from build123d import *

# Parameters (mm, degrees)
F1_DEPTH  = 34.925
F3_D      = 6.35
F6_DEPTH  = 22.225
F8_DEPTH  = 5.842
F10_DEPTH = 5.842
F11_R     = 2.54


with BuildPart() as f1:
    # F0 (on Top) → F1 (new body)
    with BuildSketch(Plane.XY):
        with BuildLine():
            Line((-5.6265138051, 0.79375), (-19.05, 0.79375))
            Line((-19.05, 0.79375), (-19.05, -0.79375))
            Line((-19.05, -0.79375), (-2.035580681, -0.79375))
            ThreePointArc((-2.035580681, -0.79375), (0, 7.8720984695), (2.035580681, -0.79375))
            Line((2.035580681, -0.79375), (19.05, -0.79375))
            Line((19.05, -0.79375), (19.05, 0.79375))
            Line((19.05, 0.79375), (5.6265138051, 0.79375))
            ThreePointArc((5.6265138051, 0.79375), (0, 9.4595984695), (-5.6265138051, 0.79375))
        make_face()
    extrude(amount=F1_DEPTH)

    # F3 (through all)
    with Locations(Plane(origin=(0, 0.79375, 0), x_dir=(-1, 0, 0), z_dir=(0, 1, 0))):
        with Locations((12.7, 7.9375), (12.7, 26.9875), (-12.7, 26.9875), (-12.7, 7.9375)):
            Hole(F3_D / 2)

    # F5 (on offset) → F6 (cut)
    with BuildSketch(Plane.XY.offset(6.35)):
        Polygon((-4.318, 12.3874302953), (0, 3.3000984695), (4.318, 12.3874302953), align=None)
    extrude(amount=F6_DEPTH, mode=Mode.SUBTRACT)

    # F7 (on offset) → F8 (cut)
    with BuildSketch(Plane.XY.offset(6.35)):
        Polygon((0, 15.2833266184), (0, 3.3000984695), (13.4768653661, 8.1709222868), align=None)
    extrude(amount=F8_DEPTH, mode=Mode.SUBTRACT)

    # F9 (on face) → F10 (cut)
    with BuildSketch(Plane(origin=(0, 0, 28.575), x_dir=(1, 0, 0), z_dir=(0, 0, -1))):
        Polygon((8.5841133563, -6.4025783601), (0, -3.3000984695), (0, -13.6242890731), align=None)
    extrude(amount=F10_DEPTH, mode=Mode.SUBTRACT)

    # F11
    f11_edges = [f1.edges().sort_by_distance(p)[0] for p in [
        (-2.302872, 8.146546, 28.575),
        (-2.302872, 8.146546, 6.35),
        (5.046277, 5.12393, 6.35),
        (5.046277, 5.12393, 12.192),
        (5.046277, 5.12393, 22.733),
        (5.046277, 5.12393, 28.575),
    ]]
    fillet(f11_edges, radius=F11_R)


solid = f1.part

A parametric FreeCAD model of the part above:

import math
import FreeCAD as App
import Part
import Sketcher
from FreeCAD import Vector
Q = App.Units.Quantity


def edges_at(feature, points):
    """Names of the edges that pass closest to the given points."""
    edges = feature.Shape.Edges
    near = lambda p: min(range(len(edges)), key=lambda i: edges[i].distToShape(Part.Vertex(*p))[0])
    return sorted({f"Edge{near(p) + 1}" for p in points})


def add_polygon(sketch, points):
    """Adds a closed chain of lines whose ends are joined by coincident constraints."""
    first, n = sketch.GeometryCount, len(points)
    for a, b in zip(points, points[1:] + points[:1]):
        sketch.addGeometry(Part.LineSegment(App.Vector(*a, 0), App.Vector(*b, 0)), False)
    for i in range(n):
        sketch.addConstraint(Sketcher.Constraint("Coincident", first + i, 2, first + (i + 1) % n, 1))

doc = App.newDocument("Part")
body = doc.addObject("PartDesign::Body", "Body")

sketch1 = body.newObject("Sketcher::SketchObject", "Sketch")
sketch1.AttachmentSupport = (doc.getObject("XY_Plane"), [""])
sketch1.MapMode = "FlatFace"
sketch1.addGeometry([
    Part.LineSegment(Vector(-5.6, 0.8, 0), Vector(-19.1, 0.8, 0)),
    Part.LineSegment(Vector(-19.1, 0.8, 0), Vector(-19.1, -0.8, 0)),
    Part.LineSegment(Vector(-19.1, -0.8, 0), Vector(-2, -0.8, 0)),
    Part.ArcOfCircle(Part.Circle(Vector(0, 3.3, 0), Vector(0, 0, 1), 4.6), math.radians(-64), math.radians(244)),
    Part.LineSegment(Vector(2, -0.8, 0), Vector(19.1, -0.8, 0)),
    Part.LineSegment(Vector(19.1, -0.8, 0), Vector(19.1, 0.8, 0)),
    Part.LineSegment(Vector(19.1, 0.8, 0), Vector(5.6, 0.8, 0)),
    Part.ArcOfCircle(Part.Circle(Vector(0, 3.3, 0), Vector(0, 0, 1), 6.2), math.radians(-24), math.radians(204)),
], False)
sketch1.addConstraint([
    Sketcher.Constraint("Coincident", 0, 2, 1, 1),
    Sketcher.Constraint("Coincident", 1, 2, 2, 1),
    Sketcher.Constraint("Coincident", 2, 2, 3, 2),
    Sketcher.Constraint("Coincident", 3, 1, 4, 1),
    Sketcher.Constraint("Coincident", 4, 2, 5, 1),
    Sketcher.Constraint("Coincident", 5, 2, 6, 1),
    Sketcher.Constraint("Coincident", 6, 2, 7, 1),
    Sketcher.Constraint("Coincident", 7, 2, 0, 1),
    Sketcher.Constraint("Horizontal", 0),
    Sketcher.Constraint("Vertical", 1),
    Sketcher.Constraint("Horizontal", 2),
    Sketcher.Constraint("Horizontal", 4),
    Sketcher.Constraint("Vertical", 5),
    Sketcher.Constraint("Horizontal", 6),
    Sketcher.Constraint("Coincident", 7, 3, 3, 3),
    Sketcher.Constraint("Symmetric", 0, 2, 4, 2, -1, 1),
    Sketcher.Constraint("Symmetric", 2, 2, 3, 1, -2),
    Sketcher.Constraint("Horizontal", 0, 2, 5, 2),
    Sketcher.Constraint("Radius", 3, Q("0.18 in")),
    Sketcher.Constraint("Radius", 7, Q("0.2425 in")),
    Sketcher.Constraint("DistanceX", 1, 2, 4, 2, Q("1.5 in")),
    Sketcher.Constraint("DistanceY", 1, 2, 1, 1, Q("0.0625 in")),
    Sketcher.Constraint("DistanceX", 2, 1, 2, 2, 17.014419),
])
pad1 = body.newObject("PartDesign::Pad", "Pad")
pad1.Profile = sketch1
pad1.Length = Q("1.375 in")

sketch2 = body.newObject("Sketcher::SketchObject", "Sketch001")
sketch2.AttachmentSupport = (doc.getObject("XZ_Plane"), [""])
sketch2.MapMode = "FlatFace"
sketch2.AttachmentOffset = App.Placement(Vector(0, 0, -0.03125 * 25.4), App.Rotation())
sketch2.addGeometry([
    Part.Circle(Vector(-12.7, 7.9, 0), Vector(0, 0, 1), 3.2),
    Part.Circle(Vector(-12.7, 27, 0), Vector(0, 0, 1), 3.2),
    Part.Circle(Vector(12.7, 27, 0), Vector(0, 0, 1), 3.2),
    Part.Circle(Vector(12.7, 7.9, 0), Vector(0, 0, 1), 3.2),
], False)
sketch2.addConstraint([
    Sketcher.Constraint("Equal", 0, 1),
    Sketcher.Constraint("Equal", 1, 2),
    Sketcher.Constraint("Equal", 2, 3),
    Sketcher.Constraint("Symmetric", 1, 3, 2, 3, -2),
    Sketcher.Constraint("Symmetric", 0, 3, 3, 3, -2),
    Sketcher.Constraint("Vertical", 0, 3, 1, 3),
    Sketcher.Constraint("Diameter", 0, Q("0.25 in")),
    Sketcher.Constraint("DistanceX", 1, 3, 2, 3, Q("1 in")),
    Sketcher.Constraint("DistanceY", 0, 3, 1, 3, Q("0.75 in")),
    Sketcher.Constraint("DistanceY", -1, 1, 0, 3, Q("0.3125 in")),
])
doc.recompute()
hole = body.newObject("PartDesign::Hole", "Hole")
hole.Profile = sketch2
hole.ThreadType = "None"
hole.Diameter = Q("0.25 in")
hole.DepthType = "ThroughAll"
hole.Reversed = True

sketch3 = body.newObject("Sketcher::SketchObject", "Sketch002")
sketch3.AttachmentSupport = (doc.getObject("XY_Plane"), [""])
sketch3.MapMode = "FlatFace"
sketch3.AttachmentOffset = App.Placement(Vector(0, 0, 0.25 * 25.4), App.Rotation())
add_polygon(sketch3, [(-4, 12), (0, 3), (4, 12)])
sketch3.addConstraint([
    Sketcher.Constraint("Horizontal", 2),
    Sketcher.Constraint("PointOnObject", 0, 2, -2),
    Sketcher.Constraint("Equal", 0, 1),
    Sketcher.Constraint("DistanceX", 2, 2, 2, 1, Q("0.34 in")),
    Sketcher.Constraint("DistanceY", -1, 1, 0, 2, 3.300098),
    Sketcher.Constraint("Distance", 0, 10.06105),
])
pocket1 = body.newObject("PartDesign::Pocket", "Pocket")
pocket1.Profile = sketch3
pocket1.Length = Q("0.875 in")
pocket1.Reversed = True

sketch4 = body.newObject("Sketcher::SketchObject", "Sketch003")
sketch4.AttachmentSupport = (doc.getObject("XY_Plane"), [""])
sketch4.MapMode = "FlatFace"
sketch4.AttachmentOffset = App.Placement(Vector(0, 0, 0.25 * 25.4), App.Rotation())
add_polygon(sketch4, [(0, 15), (0, 3), (13, 8)])
sketch4.addConstraint([
    Sketcher.Constraint("Vertical", 0),
    Sketcher.Constraint("PointOnObject", 0, 2, -2),
    Sketcher.Constraint("DistanceY", 0, 2, 0, 1, 11.983228),
    Sketcher.Constraint("DistanceY", -1, 1, 0, 2, 3.300098),
    Sketcher.Constraint("Distance", 2, 15.23851),
    Sketcher.Constraint("Distance", 1, 14.330067),
])
pocket2 = body.newObject("PartDesign::Pocket", "Pocket001")
pocket2.Profile = sketch4
pocket2.Length = Q("0.23 in")
pocket2.Reversed = True

sketch5 = body.newObject("Sketcher::SketchObject", "Sketch004")
sketch5.AttachmentSupport = (doc.getObject("XY_Plane"), [""])
sketch5.MapMode = "FlatFace"
sketch5.AttachmentOffset = App.Placement(Vector(0, 0, 1.125 * 25.4), App.Rotation())
add_polygon(sketch5, [(9, 6), (0, 3), (0, 14)])
sketch5.addConstraint([
    Sketcher.Constraint("Vertical", 1),
    Sketcher.Constraint("PointOnObject", 0, 2, -2),
    Sketcher.Constraint("DistanceY", 1, 1, 1, 2, 10.324191),
    Sketcher.Constraint("DistanceY", -1, 1, 0, 2, 3.300098),
    Sketcher.Constraint("Distance", 0, 9.127562),
    Sketcher.Constraint("DistanceY", -1, 1, 2, 2, 6.402578),
])
pocket3 = body.newObject("PartDesign::Pocket", "Pocket002")
pocket3.Profile = sketch5
pocket3.Length = Q("0.23 in")
doc.recompute()

fillet = body.newObject("PartDesign::Fillet", "Fillet")
fillet.Base = (pocket3, edges_at(pocket3, [
    (-2.303, 8.147, 28.575),
    (-2.303, 8.147, 6.35),
    (5.046, 5.124, 6.35),
    (5.046, 5.124, 12.192),
    (5.046, 5.124, 22.733),
    (5.046, 5.124, 28.575),
]))
fillet.Radius = Q("0.1 in")

doc.recompute()
